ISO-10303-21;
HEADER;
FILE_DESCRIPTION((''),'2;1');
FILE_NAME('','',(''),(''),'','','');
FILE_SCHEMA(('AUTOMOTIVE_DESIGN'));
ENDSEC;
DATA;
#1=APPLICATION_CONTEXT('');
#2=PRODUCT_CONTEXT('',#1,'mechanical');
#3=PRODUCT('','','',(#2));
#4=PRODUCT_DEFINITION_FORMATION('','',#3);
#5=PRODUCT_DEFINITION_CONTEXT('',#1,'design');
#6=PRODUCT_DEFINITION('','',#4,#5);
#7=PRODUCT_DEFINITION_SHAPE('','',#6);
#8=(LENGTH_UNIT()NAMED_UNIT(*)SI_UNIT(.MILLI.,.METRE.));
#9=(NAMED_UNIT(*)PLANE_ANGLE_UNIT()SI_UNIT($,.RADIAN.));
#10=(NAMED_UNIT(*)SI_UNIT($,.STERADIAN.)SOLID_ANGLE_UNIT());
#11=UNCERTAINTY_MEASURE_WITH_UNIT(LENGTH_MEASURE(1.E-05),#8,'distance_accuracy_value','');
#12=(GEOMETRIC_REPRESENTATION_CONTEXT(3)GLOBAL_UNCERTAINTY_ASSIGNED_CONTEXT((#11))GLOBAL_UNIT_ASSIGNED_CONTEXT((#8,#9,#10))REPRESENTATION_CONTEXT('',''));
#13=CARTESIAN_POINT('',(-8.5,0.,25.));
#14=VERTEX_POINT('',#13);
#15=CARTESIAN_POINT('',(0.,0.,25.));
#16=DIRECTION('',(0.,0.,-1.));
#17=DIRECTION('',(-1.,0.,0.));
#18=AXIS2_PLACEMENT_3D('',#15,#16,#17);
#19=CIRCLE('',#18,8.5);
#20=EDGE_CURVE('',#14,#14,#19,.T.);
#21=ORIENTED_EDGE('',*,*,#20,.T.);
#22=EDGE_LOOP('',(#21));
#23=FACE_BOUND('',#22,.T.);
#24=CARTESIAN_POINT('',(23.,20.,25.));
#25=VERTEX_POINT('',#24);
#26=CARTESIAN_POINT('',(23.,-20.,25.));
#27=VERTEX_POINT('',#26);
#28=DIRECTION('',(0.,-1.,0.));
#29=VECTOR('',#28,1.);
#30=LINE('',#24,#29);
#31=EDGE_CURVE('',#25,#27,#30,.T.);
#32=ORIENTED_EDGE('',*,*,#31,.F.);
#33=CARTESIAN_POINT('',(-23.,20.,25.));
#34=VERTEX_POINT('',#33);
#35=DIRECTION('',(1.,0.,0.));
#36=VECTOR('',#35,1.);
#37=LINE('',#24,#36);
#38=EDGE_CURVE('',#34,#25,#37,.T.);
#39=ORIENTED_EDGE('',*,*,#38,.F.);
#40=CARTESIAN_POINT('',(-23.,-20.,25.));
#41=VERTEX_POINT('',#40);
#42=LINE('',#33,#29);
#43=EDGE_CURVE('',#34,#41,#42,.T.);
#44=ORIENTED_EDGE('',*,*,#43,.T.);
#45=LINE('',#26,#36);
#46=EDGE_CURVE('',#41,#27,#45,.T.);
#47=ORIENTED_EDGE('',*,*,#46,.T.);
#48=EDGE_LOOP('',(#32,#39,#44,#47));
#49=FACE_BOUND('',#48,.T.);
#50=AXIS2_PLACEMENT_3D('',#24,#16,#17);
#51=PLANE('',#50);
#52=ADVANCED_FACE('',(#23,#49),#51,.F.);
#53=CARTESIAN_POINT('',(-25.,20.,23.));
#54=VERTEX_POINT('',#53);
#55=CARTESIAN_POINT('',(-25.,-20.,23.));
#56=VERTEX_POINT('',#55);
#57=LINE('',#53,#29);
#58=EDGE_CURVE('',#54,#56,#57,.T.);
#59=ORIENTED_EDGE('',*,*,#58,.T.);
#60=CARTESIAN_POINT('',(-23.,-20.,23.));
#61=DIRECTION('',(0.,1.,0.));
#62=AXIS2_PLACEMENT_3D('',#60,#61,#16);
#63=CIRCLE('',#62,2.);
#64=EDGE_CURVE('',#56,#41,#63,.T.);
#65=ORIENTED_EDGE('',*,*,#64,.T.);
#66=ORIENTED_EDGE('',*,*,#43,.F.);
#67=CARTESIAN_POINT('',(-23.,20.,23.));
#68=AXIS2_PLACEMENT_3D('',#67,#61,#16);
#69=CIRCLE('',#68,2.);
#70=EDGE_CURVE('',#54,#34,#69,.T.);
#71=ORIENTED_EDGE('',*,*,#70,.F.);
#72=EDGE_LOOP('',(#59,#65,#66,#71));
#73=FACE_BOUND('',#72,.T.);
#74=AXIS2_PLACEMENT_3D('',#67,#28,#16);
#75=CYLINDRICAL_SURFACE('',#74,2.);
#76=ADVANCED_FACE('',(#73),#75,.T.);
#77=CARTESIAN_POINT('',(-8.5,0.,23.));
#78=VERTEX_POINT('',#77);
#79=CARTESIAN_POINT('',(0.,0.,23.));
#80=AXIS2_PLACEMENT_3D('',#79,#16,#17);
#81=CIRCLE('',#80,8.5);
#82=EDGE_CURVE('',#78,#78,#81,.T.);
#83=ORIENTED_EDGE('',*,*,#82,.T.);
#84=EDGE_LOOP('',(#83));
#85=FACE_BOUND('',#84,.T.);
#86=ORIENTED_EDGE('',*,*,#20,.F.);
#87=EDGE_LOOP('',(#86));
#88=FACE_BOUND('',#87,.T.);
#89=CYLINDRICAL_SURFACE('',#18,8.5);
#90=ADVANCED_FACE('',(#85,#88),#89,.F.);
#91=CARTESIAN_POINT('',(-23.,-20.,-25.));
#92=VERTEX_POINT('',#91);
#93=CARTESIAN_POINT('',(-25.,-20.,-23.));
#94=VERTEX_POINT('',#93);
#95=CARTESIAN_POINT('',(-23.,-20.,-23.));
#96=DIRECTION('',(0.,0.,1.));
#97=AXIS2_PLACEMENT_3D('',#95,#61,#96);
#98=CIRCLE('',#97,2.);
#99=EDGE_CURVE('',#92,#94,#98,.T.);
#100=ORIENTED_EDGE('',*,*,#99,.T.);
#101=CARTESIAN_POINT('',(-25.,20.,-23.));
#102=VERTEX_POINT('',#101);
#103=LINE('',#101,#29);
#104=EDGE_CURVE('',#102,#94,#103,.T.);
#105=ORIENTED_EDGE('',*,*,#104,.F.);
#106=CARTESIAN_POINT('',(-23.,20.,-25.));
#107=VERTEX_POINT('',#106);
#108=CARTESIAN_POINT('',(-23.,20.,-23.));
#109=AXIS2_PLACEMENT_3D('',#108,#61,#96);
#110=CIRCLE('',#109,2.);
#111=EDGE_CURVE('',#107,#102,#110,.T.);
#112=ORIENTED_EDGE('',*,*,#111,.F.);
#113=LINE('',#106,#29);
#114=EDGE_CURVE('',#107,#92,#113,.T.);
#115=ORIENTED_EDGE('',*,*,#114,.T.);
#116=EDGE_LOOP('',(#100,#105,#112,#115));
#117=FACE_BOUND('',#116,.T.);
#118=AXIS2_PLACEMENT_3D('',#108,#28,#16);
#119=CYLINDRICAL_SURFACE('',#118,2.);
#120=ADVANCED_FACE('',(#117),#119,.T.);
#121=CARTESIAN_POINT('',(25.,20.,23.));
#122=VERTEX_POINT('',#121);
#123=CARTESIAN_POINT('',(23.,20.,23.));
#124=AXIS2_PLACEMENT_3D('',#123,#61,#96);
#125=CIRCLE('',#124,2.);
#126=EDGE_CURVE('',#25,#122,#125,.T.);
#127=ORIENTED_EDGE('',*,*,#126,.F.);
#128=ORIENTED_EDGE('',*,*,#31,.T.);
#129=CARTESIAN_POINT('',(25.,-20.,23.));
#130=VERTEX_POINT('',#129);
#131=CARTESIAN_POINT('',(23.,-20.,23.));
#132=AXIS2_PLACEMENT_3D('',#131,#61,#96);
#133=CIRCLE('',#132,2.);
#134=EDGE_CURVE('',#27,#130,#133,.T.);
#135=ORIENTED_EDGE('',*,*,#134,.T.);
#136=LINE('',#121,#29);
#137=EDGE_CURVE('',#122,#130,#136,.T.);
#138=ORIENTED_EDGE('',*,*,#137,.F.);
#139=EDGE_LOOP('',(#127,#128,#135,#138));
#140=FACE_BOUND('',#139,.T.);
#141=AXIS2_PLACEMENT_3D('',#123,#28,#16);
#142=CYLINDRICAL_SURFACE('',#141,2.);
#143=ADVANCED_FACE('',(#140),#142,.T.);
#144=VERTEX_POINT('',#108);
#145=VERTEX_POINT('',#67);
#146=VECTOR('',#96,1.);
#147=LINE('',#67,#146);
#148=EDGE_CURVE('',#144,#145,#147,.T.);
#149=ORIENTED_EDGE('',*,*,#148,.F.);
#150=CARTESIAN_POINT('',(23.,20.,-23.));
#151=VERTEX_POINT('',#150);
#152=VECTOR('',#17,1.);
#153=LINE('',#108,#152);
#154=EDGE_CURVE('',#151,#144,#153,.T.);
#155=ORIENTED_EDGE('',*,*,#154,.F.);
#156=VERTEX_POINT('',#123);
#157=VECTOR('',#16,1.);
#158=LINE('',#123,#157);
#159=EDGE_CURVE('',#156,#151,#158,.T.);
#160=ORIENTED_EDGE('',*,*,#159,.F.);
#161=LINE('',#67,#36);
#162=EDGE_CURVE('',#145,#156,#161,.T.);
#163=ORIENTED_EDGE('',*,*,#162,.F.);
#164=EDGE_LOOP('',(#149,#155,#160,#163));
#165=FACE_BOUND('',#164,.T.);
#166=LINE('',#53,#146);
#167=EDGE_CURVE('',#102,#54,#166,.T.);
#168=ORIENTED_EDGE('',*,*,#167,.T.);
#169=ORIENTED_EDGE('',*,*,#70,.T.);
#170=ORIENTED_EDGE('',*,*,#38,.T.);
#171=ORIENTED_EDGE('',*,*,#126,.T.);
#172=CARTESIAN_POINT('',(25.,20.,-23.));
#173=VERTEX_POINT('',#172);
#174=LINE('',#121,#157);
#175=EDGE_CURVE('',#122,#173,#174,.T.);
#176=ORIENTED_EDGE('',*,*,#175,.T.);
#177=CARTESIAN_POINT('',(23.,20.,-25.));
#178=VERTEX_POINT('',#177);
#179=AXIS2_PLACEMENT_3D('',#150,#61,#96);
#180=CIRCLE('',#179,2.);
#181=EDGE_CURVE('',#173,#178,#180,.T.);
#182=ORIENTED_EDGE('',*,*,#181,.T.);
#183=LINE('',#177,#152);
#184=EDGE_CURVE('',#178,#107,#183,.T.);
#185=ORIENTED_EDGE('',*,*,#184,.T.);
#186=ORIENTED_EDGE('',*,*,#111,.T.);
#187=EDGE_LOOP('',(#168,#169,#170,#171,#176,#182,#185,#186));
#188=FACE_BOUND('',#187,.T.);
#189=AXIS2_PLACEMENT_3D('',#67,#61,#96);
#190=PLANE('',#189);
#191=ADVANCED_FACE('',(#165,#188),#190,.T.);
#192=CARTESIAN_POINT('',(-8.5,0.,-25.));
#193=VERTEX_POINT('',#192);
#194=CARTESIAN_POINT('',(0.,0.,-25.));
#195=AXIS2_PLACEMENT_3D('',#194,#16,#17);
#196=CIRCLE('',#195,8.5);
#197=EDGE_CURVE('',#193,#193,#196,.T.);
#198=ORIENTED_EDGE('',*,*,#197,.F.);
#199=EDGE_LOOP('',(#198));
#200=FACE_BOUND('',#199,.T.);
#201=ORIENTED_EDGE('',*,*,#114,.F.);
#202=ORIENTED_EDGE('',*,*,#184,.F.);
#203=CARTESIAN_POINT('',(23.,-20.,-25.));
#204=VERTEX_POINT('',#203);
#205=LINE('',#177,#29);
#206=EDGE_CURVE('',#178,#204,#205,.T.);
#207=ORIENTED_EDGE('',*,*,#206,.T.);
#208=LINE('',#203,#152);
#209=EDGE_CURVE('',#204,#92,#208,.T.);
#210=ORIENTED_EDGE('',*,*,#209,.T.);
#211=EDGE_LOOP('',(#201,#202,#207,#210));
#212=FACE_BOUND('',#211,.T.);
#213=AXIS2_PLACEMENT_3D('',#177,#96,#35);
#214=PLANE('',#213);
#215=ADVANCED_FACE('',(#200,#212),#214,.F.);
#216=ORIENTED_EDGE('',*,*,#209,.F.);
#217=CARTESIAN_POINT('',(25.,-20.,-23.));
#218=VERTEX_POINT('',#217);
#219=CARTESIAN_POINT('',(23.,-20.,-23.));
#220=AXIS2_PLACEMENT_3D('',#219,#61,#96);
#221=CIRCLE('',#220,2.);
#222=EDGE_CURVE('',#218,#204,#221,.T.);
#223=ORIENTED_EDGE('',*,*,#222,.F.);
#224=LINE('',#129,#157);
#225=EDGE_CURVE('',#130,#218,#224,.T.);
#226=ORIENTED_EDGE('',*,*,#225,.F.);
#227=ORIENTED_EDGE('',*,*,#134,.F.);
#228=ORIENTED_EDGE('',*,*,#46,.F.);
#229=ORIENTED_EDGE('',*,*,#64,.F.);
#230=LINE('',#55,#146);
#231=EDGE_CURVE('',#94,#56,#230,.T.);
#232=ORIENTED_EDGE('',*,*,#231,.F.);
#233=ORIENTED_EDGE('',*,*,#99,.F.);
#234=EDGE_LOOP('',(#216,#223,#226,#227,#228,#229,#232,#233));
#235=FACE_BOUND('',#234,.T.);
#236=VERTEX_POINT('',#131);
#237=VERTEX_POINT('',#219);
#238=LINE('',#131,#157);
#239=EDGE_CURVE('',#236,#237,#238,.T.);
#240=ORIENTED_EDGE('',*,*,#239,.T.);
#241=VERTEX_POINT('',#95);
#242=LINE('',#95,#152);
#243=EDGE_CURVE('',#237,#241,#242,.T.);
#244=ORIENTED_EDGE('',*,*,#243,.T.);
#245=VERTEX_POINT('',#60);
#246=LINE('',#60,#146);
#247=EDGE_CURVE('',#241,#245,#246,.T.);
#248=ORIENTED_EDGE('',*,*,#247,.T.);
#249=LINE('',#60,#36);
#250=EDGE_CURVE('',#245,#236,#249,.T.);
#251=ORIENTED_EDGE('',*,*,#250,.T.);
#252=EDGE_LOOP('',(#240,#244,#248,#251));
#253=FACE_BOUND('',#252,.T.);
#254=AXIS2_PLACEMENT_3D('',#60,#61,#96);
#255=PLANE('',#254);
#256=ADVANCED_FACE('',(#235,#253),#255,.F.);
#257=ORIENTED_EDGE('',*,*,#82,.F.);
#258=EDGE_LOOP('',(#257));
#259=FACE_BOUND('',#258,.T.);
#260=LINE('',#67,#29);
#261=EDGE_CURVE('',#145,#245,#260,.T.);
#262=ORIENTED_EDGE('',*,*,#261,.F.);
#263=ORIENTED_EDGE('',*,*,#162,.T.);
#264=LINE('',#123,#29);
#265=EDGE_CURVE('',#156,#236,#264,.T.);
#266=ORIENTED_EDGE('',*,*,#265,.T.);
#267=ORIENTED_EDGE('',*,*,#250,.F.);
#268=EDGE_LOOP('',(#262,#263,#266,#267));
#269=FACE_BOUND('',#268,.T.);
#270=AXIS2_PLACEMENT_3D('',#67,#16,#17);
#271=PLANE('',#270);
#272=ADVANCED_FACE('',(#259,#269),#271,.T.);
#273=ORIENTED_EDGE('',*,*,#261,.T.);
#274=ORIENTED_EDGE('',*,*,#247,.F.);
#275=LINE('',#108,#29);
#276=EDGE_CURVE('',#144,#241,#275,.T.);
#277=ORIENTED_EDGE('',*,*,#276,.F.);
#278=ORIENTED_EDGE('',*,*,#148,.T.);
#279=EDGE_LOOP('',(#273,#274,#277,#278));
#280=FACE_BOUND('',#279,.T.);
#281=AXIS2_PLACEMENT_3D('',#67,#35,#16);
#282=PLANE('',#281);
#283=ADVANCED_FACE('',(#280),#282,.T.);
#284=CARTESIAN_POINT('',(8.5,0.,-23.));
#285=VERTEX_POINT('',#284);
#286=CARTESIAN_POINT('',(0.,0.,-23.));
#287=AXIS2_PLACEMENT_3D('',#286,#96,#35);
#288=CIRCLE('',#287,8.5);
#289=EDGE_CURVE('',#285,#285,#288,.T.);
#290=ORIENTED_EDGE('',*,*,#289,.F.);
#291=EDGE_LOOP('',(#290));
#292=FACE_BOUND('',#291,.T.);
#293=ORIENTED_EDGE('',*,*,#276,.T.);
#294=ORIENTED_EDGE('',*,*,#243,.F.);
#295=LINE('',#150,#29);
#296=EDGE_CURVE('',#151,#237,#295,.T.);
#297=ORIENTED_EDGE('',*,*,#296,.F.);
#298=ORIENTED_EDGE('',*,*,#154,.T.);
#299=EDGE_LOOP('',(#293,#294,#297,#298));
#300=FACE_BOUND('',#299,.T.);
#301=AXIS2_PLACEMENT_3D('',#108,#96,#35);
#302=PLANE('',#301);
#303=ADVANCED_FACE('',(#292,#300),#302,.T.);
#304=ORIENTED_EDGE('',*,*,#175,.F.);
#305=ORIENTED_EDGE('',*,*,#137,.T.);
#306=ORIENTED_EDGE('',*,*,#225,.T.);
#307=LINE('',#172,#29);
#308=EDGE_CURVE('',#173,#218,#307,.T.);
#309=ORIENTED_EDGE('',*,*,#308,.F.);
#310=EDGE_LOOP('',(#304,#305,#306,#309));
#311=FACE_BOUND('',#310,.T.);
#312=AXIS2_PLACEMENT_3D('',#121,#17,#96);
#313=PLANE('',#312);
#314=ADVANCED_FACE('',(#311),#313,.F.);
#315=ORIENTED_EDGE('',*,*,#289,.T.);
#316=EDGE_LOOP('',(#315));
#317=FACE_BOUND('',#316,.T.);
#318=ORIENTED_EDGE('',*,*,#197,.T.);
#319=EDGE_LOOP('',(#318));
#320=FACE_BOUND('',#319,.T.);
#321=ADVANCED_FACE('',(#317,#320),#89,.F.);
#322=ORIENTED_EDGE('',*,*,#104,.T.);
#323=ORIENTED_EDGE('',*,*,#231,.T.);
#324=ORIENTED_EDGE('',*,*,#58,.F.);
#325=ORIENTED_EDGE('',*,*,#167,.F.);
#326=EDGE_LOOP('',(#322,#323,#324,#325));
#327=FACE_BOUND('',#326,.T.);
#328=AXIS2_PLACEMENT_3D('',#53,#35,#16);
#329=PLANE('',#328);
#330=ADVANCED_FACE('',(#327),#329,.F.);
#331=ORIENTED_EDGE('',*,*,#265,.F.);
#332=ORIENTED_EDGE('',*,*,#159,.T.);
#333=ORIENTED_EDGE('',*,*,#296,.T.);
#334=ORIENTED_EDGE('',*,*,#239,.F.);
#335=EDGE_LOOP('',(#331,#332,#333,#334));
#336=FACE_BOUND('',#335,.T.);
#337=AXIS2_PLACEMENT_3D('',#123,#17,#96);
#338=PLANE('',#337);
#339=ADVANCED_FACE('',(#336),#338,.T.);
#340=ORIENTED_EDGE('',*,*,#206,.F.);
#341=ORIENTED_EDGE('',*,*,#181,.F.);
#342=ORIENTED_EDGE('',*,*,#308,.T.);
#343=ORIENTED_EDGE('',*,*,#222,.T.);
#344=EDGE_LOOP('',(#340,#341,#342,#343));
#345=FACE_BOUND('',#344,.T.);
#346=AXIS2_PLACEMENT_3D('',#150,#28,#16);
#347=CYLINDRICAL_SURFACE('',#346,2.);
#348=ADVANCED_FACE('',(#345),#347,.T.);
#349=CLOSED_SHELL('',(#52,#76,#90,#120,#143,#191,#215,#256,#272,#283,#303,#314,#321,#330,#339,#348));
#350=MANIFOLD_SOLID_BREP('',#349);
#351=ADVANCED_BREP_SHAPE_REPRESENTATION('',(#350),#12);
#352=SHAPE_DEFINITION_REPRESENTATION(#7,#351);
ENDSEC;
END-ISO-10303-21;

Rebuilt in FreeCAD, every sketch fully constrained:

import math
import FreeCAD as App
import Part
import Sketcher
from FreeCAD import Vector


def add_polygon(sketch, points):
    """Adds a closed chain of lines whose ends are joined by coincident constraints."""
    first, n = sketch.GeometryCount, len(points)
    for a, b in zip(points, points[1:] + points[:1]):
        sketch.addGeometry(Part.LineSegment(App.Vector(*a, 0), App.Vector(*b, 0)), False)
    for i in range(n):
        sketch.addConstraint(Sketcher.Constraint("Coincident", first + i, 2, first + (i + 1) % n, 1))

doc = App.newDocument("Part")
params = doc.addObject("Spreadsheet::Sheet", "Params")
for row, (alias, value) in enumerate([
    ("sketch1_radius", "2 mm"),
    ("sketch1_width", "46 mm"),
    ("pad1_length", "40 mm"),
    ("sketch2_diameter", "17 mm"),
], start=1):
    params.set(f"A{row}", alias)
    params.set(f"B{row}", "=" + value)
    params.setAlias(f"B{row}", alias)

body = doc.addObject("PartDesign::Body", "Body")

# Sketch on XZ plane
sketch1 = doc.addObject("Sketcher::SketchObject", "Sketch")
body.addObject(sketch1)
sketch1.AttachmentSupport = (doc.XZ_Plane, [""])
sketch1.MapMode = "FlatFace"
sketch1.addGeometry(Part.LineSegment(Vector(23, -25, 0), Vector(-23, -25, 0)), False)  # 0
sketch1.addGeometry(Part.ArcOfCircle(Part.Circle(Vector(-23, -23, 0), Vector(0, 0, 1), 2), math.radians(-180), math.radians(-90)), False)  # 1
sketch1.addGeometry(Part.LineSegment(Vector(-25, -23, 0), Vector(-25, 23, 0)), False)  # 2
sketch1.addGeometry(Part.ArcOfCircle(Part.Circle(Vector(-23, 23, 0), Vector(0, 0, 1), 2), math.radians(90), math.radians(180)), False)  # 3
sketch1.addGeometry(Part.LineSegment(Vector(-23, 25, 0), Vector(23, 25, 0)), False)  # 4
sketch1.addGeometry(Part.ArcOfCircle(Part.Circle(Vector(23, 23, 0), Vector(0, 0, 1), 2), math.radians(0), math.radians(90)), False)  # 5
sketch1.addGeometry(Part.LineSegment(Vector(25, 23, 0), Vector(25, -23, 0)), False)  # 6
sketch1.addGeometry(Part.ArcOfCircle(Part.Circle(Vector(23, -23, 0), Vector(0, 0, 1), 2), math.radians(-90), math.radians(0)), False)  # 7
add_polygon(sketch1, [(-23, 23), (-23, -23), (23, -23), (23, 23)])  # lines 8-11
sketch1.addConstraint(Sketcher.Constraint("Tangent", 0, 2, 1, 2))
sketch1.addConstraint(Sketcher.Constraint("Tangent", 1, 1, 2, 1))
sketch1.addConstraint(Sketcher.Constraint("Tangent", 2, 2, 3, 2))
sketch1.addConstraint(Sketcher.Constraint("Tangent", 3, 1, 4, 1))
sketch1.addConstraint(Sketcher.Constraint("Tangent", 4, 2, 5, 2))
sketch1.addConstraint(Sketcher.Constraint("Tangent", 5, 1, 6, 1))
sketch1.addConstraint(Sketcher.Constraint("Tangent", 6, 2, 7, 2))
sketch1.addConstraint(Sketcher.Constraint("Tangent", 7, 1, 0, 1))
sketch1.addConstraint(Sketcher.Constraint("Horizontal", 0))
sketch1.addConstraint(Sketcher.Constraint("Vertical", 2))
sketch1.addConstraint(Sketcher.Constraint("Horizontal", 4))
sketch1.addConstraint(Sketcher.Constraint("Vertical", 6))
sketch1.addConstraint(Sketcher.Constraint("Vertical", 8))
sketch1.addConstraint(Sketcher.Constraint("Horizontal", 9))
sketch1.addConstraint(Sketcher.Constraint("Vertical", 10))
sketch1.addConstraint(Sketcher.Constraint("Horizontal", 11))
sketch1.addConstraint(Sketcher.Constraint("Coincident", 8, 2, 1, 3))
sketch1.addConstraint(Sketcher.Constraint("Coincident", 9, 2, 7, 3))
sketch1.addConstraint(Sketcher.Constraint("Coincident", 10, 2, 5, 3))
sketch1.addConstraint(Sketcher.Constraint("Equal", 1, 3))
sketch1.addConstraint(Sketcher.Constraint("Symmetric", 1, 3, 5, 3, -1, 1))
sketch1.addConstraint(Sketcher.Constraint("Equal", 11, 2))
sketch1.addConstraint(Sketcher.Constraint("Radius", 1, 2.0))
sketch1.addConstraint(Sketcher.Constraint("DistanceX", 0, 2, 0, 1, 46.0))
sketch1.setExpression("Constraints[26]", "Params.sketch1_radius")
sketch1.setExpression("Constraints[27]", "Params.sketch1_width")
pad1 = doc.addObject("PartDesign::Pad", "Pad")
body.addObject(pad1)
pad1.Profile = sketch1
pad1.setExpression("Length", "Params.pad1_length")
pad1.Midplane = True

# Sketch on XY plane
sketch2 = doc.addObject("Sketcher::SketchObject", "Sketch001")
body.addObject(sketch2)
sketch2.AttachmentSupport = (doc.XY_Plane, [""])
sketch2.MapMode = "FlatFace"
sketch2.AttachmentOffset = App.Placement(Vector(0, 0, 23), App.Rotation())
sketch2.addGeometry(Part.Circle(Vector(0, 0, 0), Vector(0, 0, 1), 8.5), False)
sketch2.addConstraint(Sketcher.Constraint("Coincident", 0, 3, -1, 1))
sketch2.addConstraint(Sketcher.Constraint("Diameter", 0, 17.0))
sketch2.setExpression("Constraints[1]", "Params.sketch2_diameter")
pocket1 = doc.addObject("PartDesign::Pocket", "Pocket")
body.addObject(pocket1)
pocket1.Profile = sketch2
pocket1.Type = "ThroughAll"
pocket1.Midplane = True

doc.recompute()
